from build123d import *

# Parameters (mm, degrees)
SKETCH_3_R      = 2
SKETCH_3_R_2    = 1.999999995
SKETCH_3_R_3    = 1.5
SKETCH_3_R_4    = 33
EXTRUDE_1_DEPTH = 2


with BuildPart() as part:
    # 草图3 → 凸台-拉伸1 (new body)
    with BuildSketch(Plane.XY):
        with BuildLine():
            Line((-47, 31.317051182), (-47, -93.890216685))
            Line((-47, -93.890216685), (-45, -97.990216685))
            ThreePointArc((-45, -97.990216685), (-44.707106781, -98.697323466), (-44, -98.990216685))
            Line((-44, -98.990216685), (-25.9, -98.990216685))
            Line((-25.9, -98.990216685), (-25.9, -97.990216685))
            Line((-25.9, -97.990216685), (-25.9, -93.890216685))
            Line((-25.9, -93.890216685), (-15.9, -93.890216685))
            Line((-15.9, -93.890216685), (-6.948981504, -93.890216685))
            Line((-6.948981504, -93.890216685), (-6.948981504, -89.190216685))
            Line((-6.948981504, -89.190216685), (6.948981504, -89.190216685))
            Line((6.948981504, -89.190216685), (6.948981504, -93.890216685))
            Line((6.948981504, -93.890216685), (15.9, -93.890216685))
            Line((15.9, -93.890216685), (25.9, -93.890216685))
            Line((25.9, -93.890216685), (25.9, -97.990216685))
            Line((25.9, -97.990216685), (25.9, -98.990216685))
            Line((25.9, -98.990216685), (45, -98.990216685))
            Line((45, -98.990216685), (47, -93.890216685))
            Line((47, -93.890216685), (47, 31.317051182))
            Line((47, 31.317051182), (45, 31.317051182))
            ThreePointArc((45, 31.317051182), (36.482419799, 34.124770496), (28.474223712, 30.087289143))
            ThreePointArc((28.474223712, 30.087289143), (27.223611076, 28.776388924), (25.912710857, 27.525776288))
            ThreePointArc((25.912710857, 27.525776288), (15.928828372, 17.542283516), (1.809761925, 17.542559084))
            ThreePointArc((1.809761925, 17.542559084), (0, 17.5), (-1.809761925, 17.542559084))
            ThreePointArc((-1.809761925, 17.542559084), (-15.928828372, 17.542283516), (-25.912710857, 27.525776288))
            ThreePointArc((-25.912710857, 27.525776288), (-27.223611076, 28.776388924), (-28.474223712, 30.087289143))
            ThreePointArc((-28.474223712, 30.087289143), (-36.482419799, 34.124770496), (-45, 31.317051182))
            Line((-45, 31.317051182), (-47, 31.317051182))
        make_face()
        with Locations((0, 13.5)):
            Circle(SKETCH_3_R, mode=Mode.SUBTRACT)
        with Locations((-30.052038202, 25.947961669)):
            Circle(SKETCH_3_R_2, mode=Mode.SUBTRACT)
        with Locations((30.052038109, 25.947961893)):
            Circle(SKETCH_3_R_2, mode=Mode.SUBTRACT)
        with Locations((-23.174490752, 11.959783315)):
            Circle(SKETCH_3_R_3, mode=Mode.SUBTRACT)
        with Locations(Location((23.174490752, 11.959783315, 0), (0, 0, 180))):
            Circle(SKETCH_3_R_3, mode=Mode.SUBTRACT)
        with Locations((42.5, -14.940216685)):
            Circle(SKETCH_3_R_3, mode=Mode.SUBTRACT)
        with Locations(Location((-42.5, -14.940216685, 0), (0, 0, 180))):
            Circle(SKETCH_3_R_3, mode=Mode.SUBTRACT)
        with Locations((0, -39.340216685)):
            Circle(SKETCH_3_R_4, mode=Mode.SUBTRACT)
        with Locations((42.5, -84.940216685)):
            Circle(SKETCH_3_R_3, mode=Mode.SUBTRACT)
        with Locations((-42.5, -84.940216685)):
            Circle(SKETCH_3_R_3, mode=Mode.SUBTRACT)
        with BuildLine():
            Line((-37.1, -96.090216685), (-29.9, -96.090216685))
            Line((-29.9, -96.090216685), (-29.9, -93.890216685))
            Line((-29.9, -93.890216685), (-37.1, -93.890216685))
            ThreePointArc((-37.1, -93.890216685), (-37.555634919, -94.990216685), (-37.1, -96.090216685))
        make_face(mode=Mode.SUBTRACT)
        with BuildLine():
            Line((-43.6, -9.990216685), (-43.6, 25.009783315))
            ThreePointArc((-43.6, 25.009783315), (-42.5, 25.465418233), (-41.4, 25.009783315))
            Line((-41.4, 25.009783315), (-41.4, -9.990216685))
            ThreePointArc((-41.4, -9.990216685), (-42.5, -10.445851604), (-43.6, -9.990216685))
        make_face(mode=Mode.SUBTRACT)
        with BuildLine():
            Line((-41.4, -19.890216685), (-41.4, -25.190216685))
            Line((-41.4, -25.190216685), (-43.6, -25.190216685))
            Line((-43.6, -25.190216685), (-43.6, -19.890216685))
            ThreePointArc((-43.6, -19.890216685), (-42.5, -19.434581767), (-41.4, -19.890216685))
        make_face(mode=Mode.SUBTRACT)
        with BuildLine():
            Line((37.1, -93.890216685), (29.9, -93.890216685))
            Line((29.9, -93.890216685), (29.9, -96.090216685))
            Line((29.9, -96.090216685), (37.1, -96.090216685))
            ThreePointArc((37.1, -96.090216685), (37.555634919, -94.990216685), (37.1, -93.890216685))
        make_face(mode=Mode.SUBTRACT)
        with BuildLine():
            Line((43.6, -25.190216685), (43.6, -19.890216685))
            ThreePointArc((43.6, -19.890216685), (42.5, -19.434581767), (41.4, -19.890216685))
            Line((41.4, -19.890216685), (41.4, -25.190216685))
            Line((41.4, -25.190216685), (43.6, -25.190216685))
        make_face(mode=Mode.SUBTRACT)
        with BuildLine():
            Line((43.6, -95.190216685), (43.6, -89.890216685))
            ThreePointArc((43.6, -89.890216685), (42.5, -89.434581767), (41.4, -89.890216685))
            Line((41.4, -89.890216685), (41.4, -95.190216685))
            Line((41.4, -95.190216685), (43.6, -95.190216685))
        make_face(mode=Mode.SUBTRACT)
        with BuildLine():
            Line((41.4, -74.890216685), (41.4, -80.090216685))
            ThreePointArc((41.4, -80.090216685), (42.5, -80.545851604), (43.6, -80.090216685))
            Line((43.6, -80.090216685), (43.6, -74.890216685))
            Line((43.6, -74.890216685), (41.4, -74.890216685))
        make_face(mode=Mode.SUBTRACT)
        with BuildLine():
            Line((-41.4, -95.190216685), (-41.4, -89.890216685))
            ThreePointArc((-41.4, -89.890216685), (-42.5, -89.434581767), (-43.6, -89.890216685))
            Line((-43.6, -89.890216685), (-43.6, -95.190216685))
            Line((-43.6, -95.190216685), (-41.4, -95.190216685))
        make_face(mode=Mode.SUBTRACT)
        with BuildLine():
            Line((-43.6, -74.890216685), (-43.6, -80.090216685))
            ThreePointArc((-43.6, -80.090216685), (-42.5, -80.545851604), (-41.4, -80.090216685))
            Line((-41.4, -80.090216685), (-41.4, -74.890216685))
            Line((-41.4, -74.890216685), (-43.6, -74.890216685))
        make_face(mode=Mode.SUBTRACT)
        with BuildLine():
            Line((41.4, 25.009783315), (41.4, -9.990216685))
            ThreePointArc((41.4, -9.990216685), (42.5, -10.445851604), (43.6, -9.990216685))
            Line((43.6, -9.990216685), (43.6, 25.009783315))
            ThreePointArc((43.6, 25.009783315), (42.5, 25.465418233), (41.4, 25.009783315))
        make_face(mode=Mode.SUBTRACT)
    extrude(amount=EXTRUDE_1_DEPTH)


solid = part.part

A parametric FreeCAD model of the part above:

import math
import FreeCAD as App
import Part
import Sketcher
from FreeCAD import Vector
Q = App.Units.Quantity

doc = App.newDocument("Part")
body = doc.addObject("PartDesign::Body", "Body")

sketch1 = body.newObject("Sketcher::SketchObject", "Sketch")
sketch1.AttachmentSupport = (doc.getObject("XY_Plane"), [""])
sketch1.MapMode = "FlatFace"
sketch1.addGeometry(Part.LineSegment(Vector(-47, 31.3, 0), Vector(-47, -93.9, 0)), False)
sketch1.addGeometry(Part.LineSegment(Vector(-47, -93.9, 0), Vector(-45, -98, 0)), False)
sketch1.addGeometry(Part.ArcOfCircle(Part.Circle(Vector(-44, -98, 0), Vector(0, 0, 1), 1), math.radians(-180), math.radians(-90)), False)
sketch1.addGeometry(Part.LineSegment(Vector(-44, -99, 0), Vector(-25.9, -99, 0)), False)
sketch1.addGeometry(Part.LineSegment(Vector(-25.9, -99, 0), Vector(-25.9, -93.9, 0)), False)
sketch1.addGeometry(Part.LineSegment(Vector(-25.9, -93.9, 0), Vector(-6.9, -93.9, 0)), False)
sketch1.addGeometry(Part.LineSegment(Vector(-6.9, -93.9, 0), Vector(-6.9, -89.2, 0)), False)
sketch1.addGeometry(Part.LineSegment(Vector(-6.9, -89.2, 0), Vector(6.9, -89.2, 0)), False)
sketch1.addGeometry(Part.LineSegment(Vector(6.9, -89.2, 0), Vector(6.9, -93.9, 0)), False)
sketch1.addGeometry(Part.LineSegment(Vector(6.9, -93.9, 0), Vector(25.9, -93.9, 0)), False)
sketch1.addGeometry(Part.LineSegment(Vector(25.9, -93.9, 0), Vector(25.9, -99, 0)), False)
sketch1.addGeometry(Part.LineSegment(Vector(25.9, -99, 0), Vector(45, -99, 0)), False)
sketch1.addGeometry(Part.LineSegment(Vector(45, -99, 0), Vector(47, -93.9, 0)), False)
sketch1.addGeometry(Part.LineSegment(Vector(47, -93.9, 0), Vector(47, 31.3, 0)), False)
sketch1.addGeometry(Part.LineSegment(Vector(47, 31.3, 0), Vector(45, 31.3, 0)), False)
sketch1.addGeometry(Part.ArcOfCircle(Part.Circle(Vector(37.4, 22.4, 0), Vector(0, 0, 1), 11.7), math.radians(49), math.radians(139)), False)
sketch1.addGeometry(Part.ArcOfCircle(Part.Circle(Vector(0, 56, 0), Vector(0, 0, 1), 38.5), math.radians(-47.7), math.radians(-42.3)), False)
sketch1.addGeometry(Part.ArcOfCircle(Part.Circle(Vector(8.9, 34.6, 0), Vector(0, 0, 1), 18.4), math.radians(-113), math.radians(-23)), False)
sketch1.addGeometry(Part.ArcOfCircle(Part.Circle(Vector(0, 56, 0), Vector(0, 0, 1), 38.5), math.radians(-92.69), math.radians(-87.31)), False)
sketch1.addGeometry(Part.ArcOfCircle(Part.Circle(Vector(-8.9, 34.6, 0), Vector(0, 0, 1), 18.4), math.radians(-157), math.radians(-67)), False)
sketch1.addGeometry(Part.ArcOfCircle(Part.Circle(Vector(0, 56, 0), Vector(0, 0, 1), 38.5), math.radians(-137.7), math.radians(-132.3)), False)
sketch1.addGeometry(Part.ArcOfCircle(Part.Circle(Vector(-37.4, 22.4, 0), Vector(0, 0, 1), 11.7), math.radians(41), math.radians(131)), False)
sketch1.addGeometry(Part.LineSegment(Vector(-45, 31.3, 0), Vector(-47, 31.3, 0)), False)
sketch1.addGeometry(Part.LineSegment(Vector(-41.4, -89.9, 0), Vector(-41.4, -95.2, 0)), False)
sketch1.addGeometry(Part.LineSegment(Vector(-41.4, -95.2, 0), Vector(-43.6, -95.2, 0)), False)
sketch1.addGeometry(Part.LineSegment(Vector(-43.6, -95.2, 0), Vector(-43.6, -89.9, 0)), False)
sketch1.addGeometry(Part.ArcOfCircle(Part.Circle(Vector(-42.5, -91, 0), Vector(0, 0, 1), 1.6), math.radians(45), math.radians(135)), False)
sketch1.addGeometry(Part.LineSegment(Vector(-29.9, -96.1, 0), Vector(-37.1, -96.1, 0)), False)
sketch1.addGeometry(Part.ArcOfCircle(Part.Circle(Vector(-36, -95, 0), Vector(0, 0, 1), 1.6), math.radians(135), math.radians(225)), False)
sketch1.addGeometry(Part.LineSegment(Vector(-37.1, -93.9, 0), Vector(-29.9, -93.9, 0)), False)
sketch1.addGeometry(Part.LineSegment(Vector(-29.9, -93.9, 0), Vector(-29.9, -96.1, 0)), False)
sketch1.addGeometry(Part.Circle(Vector(-42.5, -84.9, 0), Vector(0, 0, 1), 1.5), False)
sketch1.addGeometry(Part.LineSegment(Vector(-43.6, -80.1, 0), Vector(-43.6, -74.9, 0)), False)
sketch1.addGeometry(Part.LineSegment(Vector(-43.6, -74.9, 0), Vector(-41.4, -74.9, 0)), False)
sketch1.addGeometry(Part.LineSegment(Vector(-41.4, -74.9, 0), Vector(-41.4, -80.1, 0)), False)
sketch1.addGeometry(Part.ArcOfCircle(Part.Circle(Vector(-42.5, -79, 0), Vector(0, 0, 1), 1.6), math.radians(-135), math.radians(-45)), False)
sketch1.addGeometry(Part.LineSegment(Vector(29.9, -93.9, 0), Vector(37.1, -93.9, 0)), False)
sketch1.addGeometry(Part.ArcOfCircle(Part.Circle(Vector(36, -95, 0), Vector(0, 0, 1), 1.6), math.radians(-45), math.radians(45)), False)
sketch1.addGeometry(Part.LineSegment(Vector(37.1, -96.1, 0), Vector(29.9, -96.1, 0)), False)
sketch1.addGeometry(Part.LineSegment(Vector(29.9, -96.1, 0), Vector(29.9, -93.9, 0)), False)
sketch1.addGeometry(Part.LineSegment(Vector(43.6, -89.9, 0), Vector(43.6, -95.2, 0)), False)
sketch1.addGeometry(Part.LineSegment(Vector(43.6, -95.2, 0), Vector(41.4, -95.2, 0)), False)
sketch1.addGeometry(Part.LineSegment(Vector(41.4, -95.2, 0), Vector(41.4, -89.9, 0)), False)
sketch1.addGeometry(Part.ArcOfCircle(Part.Circle(Vector(42.5, -91, 0), Vector(0, 0, 1), 1.6), math.radians(45), math.radians(135)), False)
sketch1.addGeometry(Part.Circle(Vector(42.5, -84.9, 0), Vector(0, 0, 1), 1.5), False)
sketch1.addGeometry(Part.LineSegment(Vector(41.4, -80.1, 0), Vector(41.4, -74.9, 0)), False)
sketch1.addGeometry(Part.LineSegment(Vector(41.4, -74.9, 0), Vector(43.6, -74.9, 0)), False)
sketch1.addGeometry(Part.LineSegment(Vector(43.6, -74.9, 0), Vector(43.6, -80.1, 0)), False)
sketch1.addGeometry(Part.ArcOfCircle(Part.Circle(Vector(42.5, -79, 0), Vector(0, 0, 1), 1.6), math.radians(-135), math.radians(-45)), False)
sketch1.addGeometry(Part.Circle(Vector(0, -39.3, 0), Vector(0, 0, 1), 33), False)
sketch1.addGeometry(Part.ArcOfCircle(Part.Circle(Vector(-42.5, -21, 0), Vector(0, 0, 1), 1.6), math.radians(45), math.radians(135)), False)
sketch1.addGeometry(Part.LineSegment(Vector(-41.4, -19.9, 0), Vector(-41.4, -25.2, 0)), False)
sketch1.addGeometry(Part.LineSegment(Vector(-41.4, -25.2, 0), Vector(-43.6, -25.2, 0)), False)
sketch1.addGeometry(Part.LineSegment(Vector(-43.6, -25.2, 0), Vector(-43.6, -19.9, 0)), False)
sketch1.addGeometry(Part.Circle(Vector(-42.5, -14.9, 0), Vector(0, 0, 1), 1.5), False)
sketch1.addGeometry(Part.ArcOfCircle(Part.Circle(Vector(-42.5, -8.9, 0), Vector(0, 0, 1), 1.6), math.radians(-135), math.radians(-45)), False)
sketch1.addGeometry(Part.LineSegment(Vector(-43.6, -10, 0), Vector(-43.6, 25, 0)), False)
sketch1.addGeometry(Part.ArcOfCircle(Part.Circle(Vector(-42.5, 23.9, 0), Vector(0, 0, 1), 1.6), math.radians(45), math.radians(135)), False)
sketch1.addGeometry(Part.LineSegment(Vector(-41.4, 25, 0), Vector(-41.4, -10, 0)), False)
sketch1.addGeometry(Part.Circle(Vector(-23.2, 12, 0), Vector(0, 0, 1), 1.5), False)
sketch1.addGeometry(Part.Circle(Vector(-30.1, 25.9, 0), Vector(0, 0, 1), 2), False)
sketch1.addGeometry(Part.LineSegment(Vector(43.6, -19.9, 0), Vector(43.6, -25.2, 0)), False)
sketch1.addGeometry(Part.LineSegment(Vector(43.6, -25.2, 0), Vector(41.4, -25.2, 0)), False)
sketch1.addGeometry(Part.LineSegment(Vector(41.4, -25.2, 0), Vector(41.4, -19.9, 0)), False)
sketch1.addGeometry(Part.ArcOfCircle(Part.Circle(Vector(42.5, -21, 0), Vector(0, 0, 1), 1.6), math.radians(45), math.radians(135)), False)
sketch1.addGeometry(Part.Circle(Vector(42.5, -14.9, 0), Vector(0, 0, 1), 1.5), False)
sketch1.addGeometry(Part.Circle(Vector(0, 13.5, 0), Vector(0, 0, 1), 2), False)
sketch1.addGeometry(Part.Circle(Vector(23.2, 12, 0), Vector(0, 0, 1), 1.5), False)
sketch1.addGeometry(Part.LineSegment(Vector(41.4, -10, 0), Vector(41.4, 25, 0)), False)
sketch1.addGeometry(Part.ArcOfCircle(Part.Circle(Vector(42.5, 23.9, 0), Vector(0, 0, 1), 1.6), math.radians(45), math.radians(135)), False)
sketch1.addGeometry(Part.LineSegment(Vector(43.6, 25, 0), Vector(43.6, -10, 0)), False)
sketch1.addGeometry(Part.ArcOfCircle(Part.Circle(Vector(42.5, -8.9, 0), Vector(0, 0, 1), 1.6), math.radians(-135), math.radians(-45)), False)
sketch1.addGeometry(Part.Circle(Vector(30.1, 25.9, 0), Vector(0, 0, 1), 2), False)
sketch1.addConstraint(Sketcher.Constraint("Coincident", 0, 2, 1, 1))
sketch1.addConstraint(Sketcher.Constraint("Coincident", 1, 2, 2, 1))
sketch1.addConstraint(Sketcher.Constraint("Tangent", 2, 2, 3, 1))
sketch1.addConstraint(Sketcher.Constraint("Coincident", 3, 2, 4, 1))
sketch1.addConstraint(Sketcher.Constraint("Coincident", 4, 2, 5, 1))
sketch1.addConstraint(Sketcher.Constraint("Coincident", 5, 2, 6, 1))
sketch1.addConstraint(Sketcher.Constraint("Coincident", 6, 2, 7, 1))
sketch1.addConstraint(Sketcher.Constraint("Coincident", 7, 2, 8, 1))
sketch1.addConstraint(Sketcher.Constraint("Coincident", 8, 2, 9, 1))
sketch1.addConstraint(Sketcher.Constraint("Coincident", 9, 2, 10, 1))
sketch1.addConstraint(Sketcher.Constraint("Coincident", 10, 2, 11, 1))
sketch1.addConstraint(Sketcher.Constraint("Coincident", 11, 2, 12, 1))
sketch1.addConstraint(Sketcher.Constraint("Coincident", 12, 2, 13, 1))
sketch1.addConstraint(Sketcher.Constraint("Coincident", 13, 2, 14, 1))
sketch1.addConstraint(Sketcher.Constraint("Coincident", 14, 2, 15, 1))
sketch1.addConstraint(Sketcher.Constraint("Coincident", 15, 2, 16, 2))
sketch1.addConstraint(Sketcher.Constraint("Coincident", 16, 1, 17, 2))
sketch1.addConstraint(Sketcher.Constraint("Coincident", 17, 1, 18, 2))
sketch1.addConstraint(Sketcher.Constraint("Coincident", 18, 1, 19, 2))
sketch1.addConstraint(Sketcher.Constraint("Coincident", 19, 1, 20, 2))
sketch1.addConstraint(Sketcher.Constraint("Coincident", 20, 1, 21, 1))
sketch1.addConstraint(Sketcher.Constraint("Coincident", 21, 2, 22, 1))
sketch1.addConstraint(Sketcher.Constraint("Coincident", 22, 2, 0, 1))
sketch1.addConstraint(Sketcher.Constraint("Coincident", 23, 2, 24, 1))
sketch1.addConstraint(Sketcher.Constraint("Coincident", 24, 2, 25, 1))
sketch1.addConstraint(Sketcher.Constraint("Coincident", 25, 2, 26, 2))
sketch1.addConstraint(Sketcher.Constraint("Coincident", 26, 1, 23, 1))
sketch1.addConstraint(Sketcher.Constraint("Coincident", 27, 2, 28, 2))
sketch1.addConstraint(Sketcher.Constraint("Coincident", 28, 1, 29, 1))
sketch1.addConstraint(Sketcher.Constraint("Coincident", 29, 2, 30, 1))
sketch1.addConstraint(Sketcher.Constraint("Coincident", 30, 2, 27, 1))
sketch1.addConstraint(Sketcher.Constraint("Coincident", 32, 2, 33, 1))
sketch1.addConstraint(Sketcher.Constraint("Coincident", 33, 2, 34, 1))
sketch1.addConstraint(Sketcher.Constraint("Coincident", 34, 2, 35, 2))
sketch1.addConstraint(Sketcher.Constraint("Coincident", 35, 1, 32, 1))
sketch1.addConstraint(Sketcher.Constraint("Coincident", 36, 2, 37, 2))
sketch1.addConstraint(Sketcher.Constraint("Coincident", 37, 1, 38, 1))
sketch1.addConstraint(Sketcher.Constraint("Coincident", 38, 2, 39, 1))
sketch1.addConstraint(Sketcher.Constraint("Coincident", 39, 2, 36, 1))
sketch1.addConstraint(Sketcher.Constraint("Coincident", 40, 2, 41, 1))
sketch1.addConstraint(Sketcher.Constraint("Coincident", 41, 2, 42, 1))
sketch1.addConstraint(Sketcher.Constraint("Coincident", 42, 2, 43, 2))
sketch1.addConstraint(Sketcher.Constraint("Coincident", 43, 1, 40, 1))
sketch1.addConstraint(Sketcher.Constraint("Coincident", 45, 2, 46, 1))
sketch1.addConstraint(Sketcher.Constraint("Coincident", 46, 2, 47, 1))
sketch1.addConstraint(Sketcher.Constraint("Coincident", 47, 2, 48, 2))
sketch1.addConstraint(Sketcher.Constraint("Coincident", 48, 1, 45, 1))
sketch1.addConstraint(Sketcher.Constraint("Coincident", 50, 1, 51, 1))
sketch1.addConstraint(Sketcher.Constraint("Coincident", 51, 2, 52, 1))
sketch1.addConstraint(Sketcher.Constraint("Coincident", 52, 2, 53, 1))
sketch1.addConstraint(Sketcher.Constraint("Coincident", 53, 2, 50, 2))
sketch1.addConstraint(Sketcher.Constraint("Coincident", 55, 1, 56, 1))
sketch1.addConstraint(Sketcher.Constraint("Coincident", 56, 2, 57, 2))
sketch1.addConstraint(Sketcher.Constraint("Coincident", 57, 1, 58, 1))
sketch1.addConstraint(Sketcher.Constraint("Coincident", 58, 2, 55, 2))
sketch1.addConstraint(Sketcher.Constraint("Coincident", 61, 2, 62, 1))
sketch1.addConstraint(Sketcher.Constraint("Coincident", 62, 2, 63, 1))
sketch1.addConstraint(Sketcher.Constraint("Coincident", 63, 2, 64, 2))
sketch1.addConstraint(Sketcher.Constraint("Coincident", 64, 1, 61, 1))
sketch1.addConstraint(Sketcher.Constraint("Coincident", 68, 2, 69, 2))
sketch1.addConstraint(Sketcher.Constraint("Coincident", 69, 1, 70, 1))
sketch1.addConstraint(Sketcher.Constraint("Coincident", 70, 2, 71, 2))
sketch1.addConstraint(Sketcher.Constraint("Coincident", 71, 1, 68, 1))
sketch1.addConstraint(Sketcher.Constraint("Vertical", 0))
sketch1.addConstraint(Sketcher.Constraint("Horizontal", 3))
sketch1.addConstraint(Sketcher.Constraint("Vertical", 4))
sketch1.addConstraint(Sketcher.Constraint("Horizontal", 5))
sketch1.addConstraint(Sketcher.Constraint("Vertical", 6))
sketch1.addConstraint(Sketcher.Constraint("Horizontal", 7))
sketch1.addConstraint(Sketcher.Constraint("Vertical", 8))
sketch1.addConstraint(Sketcher.Constraint("Horizontal", 9))
sketch1.addConstraint(Sketcher.Constraint("Vertical", 10))
sketch1.addConstraint(Sketcher.Constraint("Horizontal", 11))
sketch1.addConstraint(Sketcher.Constraint("Vertical", 13))
sketch1.addConstraint(Sketcher.Constraint("Horizontal", 14))
sketch1.addConstraint(Sketcher.Constraint("Horizontal", 22))
sketch1.addConstraint(Sketcher.Constraint("Vertical", 23))
sketch1.addConstraint(Sketcher.Constraint("Horizontal", 24))
sketch1.addConstraint(Sketcher.Constraint("Vertical", 25))
sketch1.addConstraint(Sketcher.Constraint("Horizontal", 27))
sketch1.addConstraint(Sketcher.Constraint("Horizontal", 29))
sketch1.addConstraint(Sketcher.Constraint("Vertical", 30))
sketch1.addConstraint(Sketcher.Constraint("Vertical", 32))
sketch1.addConstraint(Sketcher.Constraint("Horizontal", 33))
sketch1.addConstraint(Sketcher.Constraint("Vertical", 34))
sketch1.addConstraint(Sketcher.Constraint("Horizontal", 36))
sketch1.addConstraint(Sketcher.Constraint("Horizontal", 38))
sketch1.addConstraint(Sketcher.Constraint("Vertical", 39))
sketch1.addConstraint(Sketcher.Constraint("Vertical", 40))
sketch1.addConstraint(Sketcher.Constraint("Horizontal", 41))
sketch1.addConstraint(Sketcher.Constraint("Vertical", 42))
sketch1.addConstraint(Sketcher.Constraint("Vertical", 45))
sketch1.addConstraint(Sketcher.Constraint("Horizontal", 46))
sketch1.addConstraint(Sketcher.Constraint("Vertical", 47))
sketch1.addConstraint(Sketcher.Constraint("Vertical", 51))
sketch1.addConstraint(Sketcher.Constraint("Horizontal", 52))
sketch1.addConstraint(Sketcher.Constraint("Vertical", 53))
sketch1.addConstraint(Sketcher.Constraint("Vertical", 56))
sketch1.addConstraint(Sketcher.Constraint("Vertical", 58))
sketch1.addConstraint(Sketcher.Constraint("Vertical", 61))
sketch1.addConstraint(Sketcher.Constraint("Horizontal", 62))
sketch1.addConstraint(Sketcher.Constraint("Vertical", 63))
sketch1.addConstraint(Sketcher.Constraint("Vertical", 68))
sketch1.addConstraint(Sketcher.Constraint("Vertical", 70))
sketch1.addConstraint(Sketcher.Constraint("Coincident", 18, 3, 16, 3))
sketch1.addConstraint(Sketcher.Constraint("Coincident", 20, 3, 16, 3))
sketch1.addConstraint(Sketcher.Constraint("Equal", 16, 18))
sketch1.addConstraint(Sketcher.Constraint("Equal", 17, 19))
sketch1.addConstraint(Sketcher.Constraint("Equal", 18, 20))
sketch1.addConstraint(Sketcher.Constraint("Equal", 15, 21))
sketch1.addConstraint(Sketcher.Constraint("Equal", 26, 28))
sketch1.addConstraint(Sketcher.Constraint("Equal", 28, 35))
sketch1.addConstraint(Sketcher.Constraint("Equal", 35, 37))
sketch1.addConstraint(Sketcher.Constraint("Equal", 37, 43))
sketch1.addConstraint(Sketcher.Constraint("Equal", 31, 44))
sketch1.addConstraint(Sketcher.Constraint("Equal", 43, 48))
sketch1.addConstraint(Sketcher.Constraint("Equal", 48, 50))
sketch1.addConstraint(Sketcher.Constraint("Equal", 44, 54))
sketch1.addConstraint(Sketcher.Constraint("Equal", 50, 55))
sketch1.addConstraint(Sketcher.Constraint("Equal", 55, 57))
sketch1.addConstraint(Sketcher.Constraint("Equal", 54, 59))
sketch1.addConstraint(Sketcher.Constraint("Equal", 57, 64))
sketch1.addConstraint(Sketcher.Constraint("Equal", 59, 65))
sketch1.addConstraint(Sketcher.Constraint("Equal", 60, 66))
sketch1.addConstraint(Sketcher.Constraint("Equal", 65, 67))
sketch1.addConstraint(Sketcher.Constraint("Equal", 64, 69))
sketch1.addConstraint(Sketcher.Constraint("Equal", 69, 71))
sketch1.addConstraint(Sketcher.Constraint("Equal", 66, 72))
sketch1.addConstraint(Sketcher.Constraint("Symmetric", 17, 3, 19, 3, -2))
sketch1.addConstraint(Sketcher.Constraint("Symmetric", 15, 3, 21, 3, -2))
sketch1.addConstraint(Sketcher.Constraint("Symmetric", 28, 3, 37, 3, -2))
sketch1.addConstraint(Sketcher.Constraint("Symmetric", 26, 3, 43, 3, -2))
sketch1.addConstraint(Sketcher.Constraint("Symmetric", 31, 3, 44, 3, -2))
sketch1.addConstraint(Sketcher.Constraint("Symmetric", 35, 3, 48, 3, -2))
sketch1.addConstraint(Sketcher.Constraint("Symmetric", 50, 3, 64, 3, -2))
sketch1.addConstraint(Sketcher.Constraint("Symmetric", 54, 3, 65, 3, -2))
sketch1.addConstraint(Sketcher.Constraint("Symmetric", 59, 3, 67, 3, -2))
sketch1.addConstraint(Sketcher.Constraint("Symmetric", 57, 3, 69, 3, -2))
sketch1.addConstraint(Sketcher.Constraint("Symmetric", 55, 3, 71, 3, -2))
sketch1.addConstraint(Sketcher.Constraint("Symmetric", 60, 3, 72, 3, -2))
sketch1.addConstraint(Sketcher.Constraint("Symmetric", 5, 2, 8, 2, -2))
sketch1.addConstraint(Sketcher.Constraint("Symmetric", 3, 2, 10, 2, -2))
sketch1.addConstraint(Sketcher.Constraint("Symmetric", 0, 2, 12, 2, -2))
sketch1.addConstraint(Sketcher.Constraint("Symmetric", 30, 2, 38, 2, -2))
sketch1.addConstraint(Sketcher.Constraint("Symmetric", 24, 2, 40, 2, -2))
sketch1.addConstraint(Sketcher.Constraint("Symmetric", 33, 2, 45, 2, -2))
sketch1.addConstraint(Sketcher.Constraint("Symmetric", 52, 2, 61, 2, -2))
sketch1.addConstraint(Sketcher.Constraint("PointOnObject", 16, 3, -2))
sketch1.addConstraint(Sketcher.Constraint("PointOnObject", 49, 3, -2))
sketch1.addConstraint(Sketcher.Constraint("PointOnObject", 66, 3, -2))
sketch1.addConstraint(Sketcher.Constraint("Horizontal", 2, 3, 1, 2))
sketch1.addConstraint(Sketcher.Constraint("Horizontal", 0, 2, 4, 2))
sketch1.addConstraint(Sketcher.Constraint("Horizontal", 14, 2, 21, 2))
sketch1.addConstraint(Sketcher.Constraint("Horizontal", 25, 2, 26, 1))
sketch1.addConstraint(Sketcher.Constraint("Horizontal", 12, 2, 28, 1))
sketch1.addConstraint(Sketcher.Constraint("Horizontal", 34, 2, 35, 1))
sketch1.addConstraint(Sketcher.Constraint("Horizontal", 29, 2, 36, 2))
sketch1.addConstraint(Sketcher.Constraint("Horizontal", 26, 1, 42, 2))
sketch1.addConstraint(Sketcher.Constraint("Horizontal", 35, 1, 47, 2))
sketch1.addConstraint(Sketcher.Constraint("Horizontal", 50, 1, 53, 2))
sketch1.addConstraint(Sketcher.Constraint("Horizontal", 56, 2, 57, 1))
sketch1.addConstraint(Sketcher.Constraint("Horizontal", 55, 1, 58, 2))
sketch1.addConstraint(Sketcher.Constraint("Horizontal", 53, 2, 63, 2))
sketch1.addConstraint(Sketcher.Constraint("Horizontal", 57, 1, 68, 2))
sketch1.addConstraint(Sketcher.Constraint("Horizontal", 68, 2, 69, 1))
sketch1.addConstraint(Sketcher.Constraint("Vertical", 26, 3, 31, 3))
sketch1.addConstraint(Sketcher.Constraint("Vertical", 31, 3, 35, 3))
sketch1.addConstraint(Sketcher.Constraint("Vertical", 35, 3, 50, 3))
sketch1.addConstraint(Sketcher.Constraint("Vertical", 50, 3, 54, 3))
sketch1.addConstraint(Sketcher.Constraint("Vertical", 54, 3, 55, 3))
sketch1.addConstraint(Sketcher.Constraint("Vertical", 11, 2, 14, 2))
sketch1.addConstraint(Sketcher.Constraint("Vertical", 1, 2, 21, 2))
sketch1.addConstraint(Sketcher.Constraint("Vertical", 27, 2, 28, 1))
sketch1.addConstraint(Sketcher.Constraint("Vertical", 25, 2, 32, 2))
sketch1.addConstraint(Sketcher.Constraint("Vertical", 34, 2, 50, 1))
sketch1.addConstraint(Sketcher.Constraint("Vertical", 53, 2, 55, 1))
sketch1.addConstraint(Sketcher.Constraint("Equal", 62, 30))
sketch1.addConstraint(Sketcher.Constraint("Equal", 42, 51))
sketch1.addConstraint(Sketcher.Constraint("Diameter", 31, Q("3 mm")))
sketch1.addConstraint(Sketcher.Constraint("Diameter", 49, Q("66 mm")))
sketch1.addConstraint(Sketcher.Constraint("Diameter", 60, Q("4 mm")))
sketch1.addConstraint(Sketcher.Constraint("Radius", 2, Q("1 mm")))
sketch1.addConstraint(Sketcher.Constraint("Radius", 16, Q("38.499999 mm")))
sketch1.addConstraint(Sketcher.Constraint("DistanceX", 14, 2, 14, 1, Q("2 mm")))
sketch1.addConstraint(Sketcher.Constraint("DistanceY", 56, 1, 56, 2, Q("35 mm")))
sketch1.addConstraint(Sketcher.Constraint("DistanceX", 3, 1, 3, 2, Q("18.1 mm")))
sketch1.addConstraint(Sketcher.Constraint("DistanceX", 24, 2, 24, 1, Q("2.2 mm")))
sketch1.addConstraint(Sketcher.Constraint("DistanceX", 27, 2, 27, 1, Q("7.2 mm")))
sketch1.addConstraint(Sketcher.Constraint("DistanceY", 4, 1, 4, 2, Q("5.1 mm")))
sketch1.addConstraint(Sketcher.Constraint("DistanceY", 6, 1, 6, 2, Q("4.7 mm")))
sketch1.addConstraint(Sketcher.Constraint("DistanceY", 23, 2, 23, 1, Q("5.3 mm")))
sketch1.addConstraint(Sketcher.Constraint("DistanceY", 32, 1, 32, 2, Q("5.2 mm")))
sketch1.addConstraint(Sketcher.Constraint("DistanceX", 2, 3, -1, 1, Q("44 mm")))
sketch1.addConstraint(Sketcher.Constraint("DistanceY", -1, 1, 16, 3, Q("55.999999 mm")))
sketch1.addConstraint(Sketcher.Constraint("DistanceX", 28, 3, -1, 1, Q("36 mm")))
sketch1.addConstraint(Sketcher.Constraint("DistanceX", 26, 3, -1, 1, Q("42.5 mm")))
sketch1.addConstraint(Sketcher.Constraint("DistanceY", -1, 1, 66, 3, Q("13.5 mm")))
sketch1.addConstraint(Sketcher.Constraint("DistanceX", 27, 2, -1, 1, Q("37.1 mm")))
sketch1.addConstraint(Sketcher.Constraint("Radius", 15, Q("11.717798 mm")))
sketch1.addConstraint(Sketcher.Constraint("Radius", 17, Q("18.447449 mm")))
sketch1.addConstraint(Sketcher.Constraint("DistanceX", 5, 1, 5, 2, Q("18.951018 mm")))
sketch1.addConstraint(Sketcher.Constraint("DistanceY", 0, 2, 0, 1, Q("125.207268 mm")))
sketch1.addConstraint(Sketcher.Constraint("DistanceX", 59, 3, -1, 1, Q("23.174491 mm")))
sketch1.addConstraint(Sketcher.Constraint("DistanceX", 60, 3, -1, 1, Q("30.052038 mm")))
sketch1.addConstraint(Sketcher.Constraint("DistanceY", -1, 1, 60, 3, Q("25.947962 mm")))
sketch1.addConstraint(Sketcher.Constraint("DistanceY", -1, 1, 13, 2, Q("31.317051 mm")))
sketch1.addConstraint(Sketcher.Constraint("DistanceY", -1, 1, 15, 2, Q("30.087289 mm")))
sketch1.addConstraint(Sketcher.Constraint("DistanceX", -1, 1, 16, 1, Q("25.912711 mm")))
sketch1.addConstraint(Sketcher.Constraint("DistanceX", -1, 1, 17, 1, Q("1.809762 mm")))
sketch1.addConstraint(Sketcher.Constraint("DistanceY", 26, 3, -1, 1, Q("90.990217 mm")))
sketch1.addConstraint(Sketcher.Constraint("DistanceY", 31, 3, -1, 1, Q("84.940217 mm")))
sketch1.addConstraint(Sketcher.Constraint("DistanceY", 35, 3, -1, 1, Q("78.990217 mm")))
sketch1.addConstraint(Sketcher.Constraint("DistanceY", 49, 3, -1, 1, Q("39.340217 mm")))
sketch1.addConstraint(Sketcher.Constraint("DistanceY", 50, 3, -1, 1, Q("20.990217 mm")))
sketch1.addConstraint(Sketcher.Constraint("DistanceY", 54, 3, -1, 1, Q("14.940217 mm")))
sketch1.addConstraint(Sketcher.Constraint("DistanceY", 55, 3, -1, 1, Q("8.890217 mm")))
sketch1.addConstraint(Sketcher.Constraint("DistanceY", -1, 1, 59, 3, Q("11.959783 mm")))
pad1 = body.newObject("PartDesign::Pad", "Pad")
pad1.Profile = sketch1
pad1.Length = 2

doc.recompute()
